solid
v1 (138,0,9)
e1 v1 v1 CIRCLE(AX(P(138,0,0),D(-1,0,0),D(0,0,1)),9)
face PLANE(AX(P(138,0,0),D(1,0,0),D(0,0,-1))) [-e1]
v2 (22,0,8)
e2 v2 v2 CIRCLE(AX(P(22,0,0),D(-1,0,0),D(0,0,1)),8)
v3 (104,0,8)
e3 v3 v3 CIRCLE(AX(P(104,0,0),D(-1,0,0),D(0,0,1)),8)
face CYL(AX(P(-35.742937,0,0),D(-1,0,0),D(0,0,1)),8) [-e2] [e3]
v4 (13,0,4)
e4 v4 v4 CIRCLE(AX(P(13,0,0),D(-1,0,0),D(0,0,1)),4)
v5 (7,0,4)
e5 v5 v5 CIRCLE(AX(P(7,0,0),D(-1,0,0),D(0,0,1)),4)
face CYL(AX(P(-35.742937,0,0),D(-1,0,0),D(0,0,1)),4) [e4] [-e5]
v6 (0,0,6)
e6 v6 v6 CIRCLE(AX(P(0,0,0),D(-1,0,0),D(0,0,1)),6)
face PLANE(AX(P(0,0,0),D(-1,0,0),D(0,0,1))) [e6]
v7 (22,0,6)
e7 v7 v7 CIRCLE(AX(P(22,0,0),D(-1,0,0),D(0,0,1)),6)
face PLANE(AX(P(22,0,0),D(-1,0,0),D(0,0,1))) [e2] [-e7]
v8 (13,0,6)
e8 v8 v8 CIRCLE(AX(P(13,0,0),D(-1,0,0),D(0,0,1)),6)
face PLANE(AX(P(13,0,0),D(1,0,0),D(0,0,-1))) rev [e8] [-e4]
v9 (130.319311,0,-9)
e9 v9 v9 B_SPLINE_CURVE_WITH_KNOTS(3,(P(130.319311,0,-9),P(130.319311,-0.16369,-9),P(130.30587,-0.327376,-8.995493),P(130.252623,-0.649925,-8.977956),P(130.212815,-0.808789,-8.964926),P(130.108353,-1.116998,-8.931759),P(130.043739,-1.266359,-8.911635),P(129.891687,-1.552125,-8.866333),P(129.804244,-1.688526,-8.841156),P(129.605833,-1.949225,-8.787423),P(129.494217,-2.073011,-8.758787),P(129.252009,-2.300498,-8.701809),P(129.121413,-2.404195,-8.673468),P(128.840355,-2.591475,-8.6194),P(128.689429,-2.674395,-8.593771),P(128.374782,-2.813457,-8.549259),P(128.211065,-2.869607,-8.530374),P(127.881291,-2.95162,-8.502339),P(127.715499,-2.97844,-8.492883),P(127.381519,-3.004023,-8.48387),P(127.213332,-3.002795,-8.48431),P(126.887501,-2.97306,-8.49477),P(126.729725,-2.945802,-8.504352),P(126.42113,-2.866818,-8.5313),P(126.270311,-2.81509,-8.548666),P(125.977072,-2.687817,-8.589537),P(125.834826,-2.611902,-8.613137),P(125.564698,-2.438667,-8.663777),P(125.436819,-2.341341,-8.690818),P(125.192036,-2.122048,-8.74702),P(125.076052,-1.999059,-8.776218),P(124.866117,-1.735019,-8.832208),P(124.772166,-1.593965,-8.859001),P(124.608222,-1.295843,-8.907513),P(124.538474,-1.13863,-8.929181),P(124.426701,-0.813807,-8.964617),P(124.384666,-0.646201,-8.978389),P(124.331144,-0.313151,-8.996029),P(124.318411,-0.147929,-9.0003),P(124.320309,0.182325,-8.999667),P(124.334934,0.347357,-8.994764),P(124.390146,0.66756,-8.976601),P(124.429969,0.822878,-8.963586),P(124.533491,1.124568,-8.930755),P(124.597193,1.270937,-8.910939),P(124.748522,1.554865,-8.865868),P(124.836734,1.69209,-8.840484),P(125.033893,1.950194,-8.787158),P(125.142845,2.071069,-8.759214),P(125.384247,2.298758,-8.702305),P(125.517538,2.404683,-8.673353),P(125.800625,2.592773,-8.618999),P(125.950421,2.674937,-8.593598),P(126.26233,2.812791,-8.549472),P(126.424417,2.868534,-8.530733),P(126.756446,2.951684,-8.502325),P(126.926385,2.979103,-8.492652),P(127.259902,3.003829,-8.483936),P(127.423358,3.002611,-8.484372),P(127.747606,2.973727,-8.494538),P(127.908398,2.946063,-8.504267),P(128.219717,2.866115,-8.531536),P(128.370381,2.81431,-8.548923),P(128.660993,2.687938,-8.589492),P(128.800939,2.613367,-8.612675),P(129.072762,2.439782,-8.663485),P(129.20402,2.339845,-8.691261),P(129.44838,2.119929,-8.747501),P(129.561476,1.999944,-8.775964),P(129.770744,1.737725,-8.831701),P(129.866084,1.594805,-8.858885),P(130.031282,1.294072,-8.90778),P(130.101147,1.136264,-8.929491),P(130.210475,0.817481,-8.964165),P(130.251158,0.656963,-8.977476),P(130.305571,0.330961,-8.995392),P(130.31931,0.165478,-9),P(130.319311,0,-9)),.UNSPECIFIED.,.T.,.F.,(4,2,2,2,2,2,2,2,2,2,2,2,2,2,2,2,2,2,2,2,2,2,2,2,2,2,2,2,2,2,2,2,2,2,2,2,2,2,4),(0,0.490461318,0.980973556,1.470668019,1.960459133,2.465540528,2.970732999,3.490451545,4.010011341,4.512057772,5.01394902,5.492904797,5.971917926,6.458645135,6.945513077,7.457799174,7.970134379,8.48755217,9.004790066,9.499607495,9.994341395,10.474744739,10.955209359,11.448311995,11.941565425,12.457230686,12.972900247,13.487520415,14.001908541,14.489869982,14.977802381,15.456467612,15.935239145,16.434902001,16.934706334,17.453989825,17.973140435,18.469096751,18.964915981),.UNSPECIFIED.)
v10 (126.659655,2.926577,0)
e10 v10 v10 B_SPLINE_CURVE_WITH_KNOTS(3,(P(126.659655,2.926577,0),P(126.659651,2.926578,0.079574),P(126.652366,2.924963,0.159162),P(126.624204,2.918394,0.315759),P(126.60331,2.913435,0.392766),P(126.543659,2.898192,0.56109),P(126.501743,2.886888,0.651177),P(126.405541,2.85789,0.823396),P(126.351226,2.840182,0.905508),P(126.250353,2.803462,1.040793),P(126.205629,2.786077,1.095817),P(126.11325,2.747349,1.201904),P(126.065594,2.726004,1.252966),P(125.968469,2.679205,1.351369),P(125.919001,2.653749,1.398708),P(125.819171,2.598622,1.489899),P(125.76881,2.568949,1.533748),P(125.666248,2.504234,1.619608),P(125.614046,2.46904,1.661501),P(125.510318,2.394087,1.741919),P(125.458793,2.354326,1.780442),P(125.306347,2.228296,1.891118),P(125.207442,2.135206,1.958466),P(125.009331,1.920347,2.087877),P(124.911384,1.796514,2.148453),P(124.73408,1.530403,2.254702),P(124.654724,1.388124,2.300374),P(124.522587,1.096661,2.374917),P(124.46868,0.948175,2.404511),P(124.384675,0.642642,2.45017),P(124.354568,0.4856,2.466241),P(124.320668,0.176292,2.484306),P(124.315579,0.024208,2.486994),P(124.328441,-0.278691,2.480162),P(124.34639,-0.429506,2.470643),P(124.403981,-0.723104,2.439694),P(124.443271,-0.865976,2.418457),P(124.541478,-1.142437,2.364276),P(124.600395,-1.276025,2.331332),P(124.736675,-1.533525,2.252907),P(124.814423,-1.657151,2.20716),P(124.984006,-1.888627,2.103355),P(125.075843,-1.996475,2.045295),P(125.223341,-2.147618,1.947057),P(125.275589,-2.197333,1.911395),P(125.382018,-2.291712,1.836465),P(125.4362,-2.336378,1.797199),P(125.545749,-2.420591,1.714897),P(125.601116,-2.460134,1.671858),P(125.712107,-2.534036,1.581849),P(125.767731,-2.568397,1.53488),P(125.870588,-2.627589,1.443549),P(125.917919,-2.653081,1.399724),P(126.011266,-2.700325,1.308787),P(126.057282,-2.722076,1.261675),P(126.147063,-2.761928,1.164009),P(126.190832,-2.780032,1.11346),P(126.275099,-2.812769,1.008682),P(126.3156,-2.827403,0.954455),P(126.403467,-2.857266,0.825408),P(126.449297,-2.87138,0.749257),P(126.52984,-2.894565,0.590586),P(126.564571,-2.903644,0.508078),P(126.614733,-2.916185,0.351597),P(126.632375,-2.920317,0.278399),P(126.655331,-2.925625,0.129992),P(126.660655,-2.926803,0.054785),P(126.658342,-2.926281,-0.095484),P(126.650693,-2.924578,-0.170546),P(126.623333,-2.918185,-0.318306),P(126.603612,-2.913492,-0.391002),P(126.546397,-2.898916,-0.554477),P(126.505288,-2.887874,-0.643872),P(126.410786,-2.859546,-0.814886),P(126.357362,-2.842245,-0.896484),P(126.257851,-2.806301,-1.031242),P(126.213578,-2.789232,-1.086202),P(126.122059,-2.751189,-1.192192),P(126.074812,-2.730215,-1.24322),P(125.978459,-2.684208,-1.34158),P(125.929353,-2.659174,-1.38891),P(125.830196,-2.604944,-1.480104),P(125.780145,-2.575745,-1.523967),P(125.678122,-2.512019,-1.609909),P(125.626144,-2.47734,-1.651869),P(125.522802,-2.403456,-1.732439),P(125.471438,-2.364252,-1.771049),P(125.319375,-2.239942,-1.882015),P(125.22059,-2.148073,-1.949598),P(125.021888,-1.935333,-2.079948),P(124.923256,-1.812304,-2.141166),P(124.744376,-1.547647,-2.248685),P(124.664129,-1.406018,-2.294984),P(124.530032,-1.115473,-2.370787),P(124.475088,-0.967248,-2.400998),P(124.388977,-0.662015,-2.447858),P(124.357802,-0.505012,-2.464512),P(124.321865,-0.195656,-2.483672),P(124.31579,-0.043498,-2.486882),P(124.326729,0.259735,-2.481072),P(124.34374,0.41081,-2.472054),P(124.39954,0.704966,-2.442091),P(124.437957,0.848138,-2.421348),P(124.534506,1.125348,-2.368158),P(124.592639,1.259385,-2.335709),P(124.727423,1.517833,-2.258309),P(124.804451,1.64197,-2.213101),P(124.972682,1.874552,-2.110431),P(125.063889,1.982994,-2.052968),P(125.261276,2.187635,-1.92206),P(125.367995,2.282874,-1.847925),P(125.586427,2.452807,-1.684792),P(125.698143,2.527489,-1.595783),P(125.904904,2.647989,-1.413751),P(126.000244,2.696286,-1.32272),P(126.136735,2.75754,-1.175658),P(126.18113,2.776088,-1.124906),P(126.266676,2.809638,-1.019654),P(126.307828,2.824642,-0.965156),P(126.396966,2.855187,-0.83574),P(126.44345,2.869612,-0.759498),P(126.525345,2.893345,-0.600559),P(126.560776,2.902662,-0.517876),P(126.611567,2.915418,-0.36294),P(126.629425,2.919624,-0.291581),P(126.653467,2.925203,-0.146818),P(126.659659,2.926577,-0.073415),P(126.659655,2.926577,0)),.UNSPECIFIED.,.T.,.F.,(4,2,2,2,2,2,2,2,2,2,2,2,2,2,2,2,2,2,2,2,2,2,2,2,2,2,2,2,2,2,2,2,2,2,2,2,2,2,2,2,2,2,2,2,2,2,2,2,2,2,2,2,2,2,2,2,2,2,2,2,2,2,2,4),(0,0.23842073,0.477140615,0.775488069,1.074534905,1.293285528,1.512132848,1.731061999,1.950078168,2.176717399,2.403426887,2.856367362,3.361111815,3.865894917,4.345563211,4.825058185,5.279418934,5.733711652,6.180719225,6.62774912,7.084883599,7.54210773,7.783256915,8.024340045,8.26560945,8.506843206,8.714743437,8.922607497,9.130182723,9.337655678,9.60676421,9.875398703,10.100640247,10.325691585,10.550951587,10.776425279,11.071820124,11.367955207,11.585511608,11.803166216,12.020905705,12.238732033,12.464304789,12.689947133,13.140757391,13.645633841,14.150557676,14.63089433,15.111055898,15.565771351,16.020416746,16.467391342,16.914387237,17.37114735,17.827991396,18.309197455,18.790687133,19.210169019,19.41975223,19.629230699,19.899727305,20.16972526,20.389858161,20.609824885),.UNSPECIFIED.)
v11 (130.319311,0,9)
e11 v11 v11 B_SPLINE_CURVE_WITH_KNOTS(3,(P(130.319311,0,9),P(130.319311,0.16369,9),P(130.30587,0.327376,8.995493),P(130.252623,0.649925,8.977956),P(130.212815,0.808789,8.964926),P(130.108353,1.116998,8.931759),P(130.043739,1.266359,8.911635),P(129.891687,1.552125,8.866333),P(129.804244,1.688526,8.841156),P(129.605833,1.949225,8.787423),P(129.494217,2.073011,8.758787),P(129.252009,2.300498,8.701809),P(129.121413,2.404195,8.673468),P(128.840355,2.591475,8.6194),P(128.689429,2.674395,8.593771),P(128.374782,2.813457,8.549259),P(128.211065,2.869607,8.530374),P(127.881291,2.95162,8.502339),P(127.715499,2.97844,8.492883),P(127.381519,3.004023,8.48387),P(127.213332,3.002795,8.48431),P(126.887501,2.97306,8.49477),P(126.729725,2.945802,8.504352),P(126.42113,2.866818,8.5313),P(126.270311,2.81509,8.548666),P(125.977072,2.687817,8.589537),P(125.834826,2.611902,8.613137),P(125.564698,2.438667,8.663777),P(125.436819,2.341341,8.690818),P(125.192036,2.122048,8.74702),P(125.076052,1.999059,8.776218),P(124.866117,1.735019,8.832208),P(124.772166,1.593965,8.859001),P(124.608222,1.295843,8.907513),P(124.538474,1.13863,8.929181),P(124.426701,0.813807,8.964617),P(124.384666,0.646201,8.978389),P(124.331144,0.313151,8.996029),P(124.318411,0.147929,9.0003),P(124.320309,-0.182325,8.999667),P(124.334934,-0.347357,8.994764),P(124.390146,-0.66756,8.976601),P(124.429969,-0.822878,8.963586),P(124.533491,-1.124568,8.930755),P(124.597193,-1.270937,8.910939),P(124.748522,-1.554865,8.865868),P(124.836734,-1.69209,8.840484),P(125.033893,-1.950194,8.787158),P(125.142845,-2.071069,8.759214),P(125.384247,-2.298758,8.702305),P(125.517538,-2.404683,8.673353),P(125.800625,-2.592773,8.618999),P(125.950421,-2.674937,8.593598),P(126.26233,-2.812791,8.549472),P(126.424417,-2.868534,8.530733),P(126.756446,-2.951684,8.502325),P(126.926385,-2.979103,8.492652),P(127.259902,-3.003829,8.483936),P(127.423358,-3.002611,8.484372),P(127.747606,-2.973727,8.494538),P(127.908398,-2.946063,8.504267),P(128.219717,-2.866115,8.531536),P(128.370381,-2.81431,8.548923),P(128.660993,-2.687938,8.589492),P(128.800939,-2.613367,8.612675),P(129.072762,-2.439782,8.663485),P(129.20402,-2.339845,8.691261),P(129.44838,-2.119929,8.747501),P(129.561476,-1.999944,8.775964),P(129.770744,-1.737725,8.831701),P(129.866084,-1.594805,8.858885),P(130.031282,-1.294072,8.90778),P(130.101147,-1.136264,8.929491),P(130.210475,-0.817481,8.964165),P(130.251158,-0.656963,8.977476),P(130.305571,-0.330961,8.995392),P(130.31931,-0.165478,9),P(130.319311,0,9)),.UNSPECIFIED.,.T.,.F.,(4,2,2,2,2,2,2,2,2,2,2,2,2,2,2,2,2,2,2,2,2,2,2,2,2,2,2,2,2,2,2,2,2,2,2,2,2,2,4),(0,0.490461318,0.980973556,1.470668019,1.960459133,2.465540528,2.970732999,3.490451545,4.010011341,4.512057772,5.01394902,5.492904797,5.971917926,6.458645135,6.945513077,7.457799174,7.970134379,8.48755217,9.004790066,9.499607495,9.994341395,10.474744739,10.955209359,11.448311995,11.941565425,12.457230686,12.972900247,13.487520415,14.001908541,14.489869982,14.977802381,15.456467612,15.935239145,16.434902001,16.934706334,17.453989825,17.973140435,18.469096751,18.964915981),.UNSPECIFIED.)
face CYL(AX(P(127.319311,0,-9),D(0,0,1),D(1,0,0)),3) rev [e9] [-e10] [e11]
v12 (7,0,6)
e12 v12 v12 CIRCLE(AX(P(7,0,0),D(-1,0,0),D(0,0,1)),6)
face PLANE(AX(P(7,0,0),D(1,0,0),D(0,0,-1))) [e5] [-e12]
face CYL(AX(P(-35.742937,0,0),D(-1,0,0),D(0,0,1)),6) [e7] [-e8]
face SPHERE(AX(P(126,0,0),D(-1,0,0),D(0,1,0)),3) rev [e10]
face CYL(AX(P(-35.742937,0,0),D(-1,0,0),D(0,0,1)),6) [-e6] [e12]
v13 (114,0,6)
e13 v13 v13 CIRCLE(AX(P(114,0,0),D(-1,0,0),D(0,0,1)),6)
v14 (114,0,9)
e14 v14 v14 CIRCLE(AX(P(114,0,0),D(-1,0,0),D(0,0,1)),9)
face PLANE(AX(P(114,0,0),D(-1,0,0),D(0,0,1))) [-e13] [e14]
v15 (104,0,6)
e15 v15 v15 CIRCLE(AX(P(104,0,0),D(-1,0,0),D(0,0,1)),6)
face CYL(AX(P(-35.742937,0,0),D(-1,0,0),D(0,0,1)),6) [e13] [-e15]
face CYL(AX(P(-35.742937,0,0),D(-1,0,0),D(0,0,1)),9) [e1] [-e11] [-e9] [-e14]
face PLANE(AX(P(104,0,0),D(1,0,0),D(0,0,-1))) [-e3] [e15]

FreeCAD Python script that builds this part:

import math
import FreeCAD as App
import Part
import Sketcher

V = App.Vector
Q = App.Units.Quantity

doc = App.newDocument("Part")
params = doc.addObject("Spreadsheet::Sheet", "Params")
for row, (alias, value) in enumerate([
    ("sketch1_radius", "3 mm"),
    ("sketch1_width", "9 mm"),
    ("sketch1_width2", "24 mm"),
    ("sketch1_width3", "10 mm"),
    ("sketch1_width4", "82 mm"),
    ("revolution_angle", "360 deg"),
    ("sketch2_diameter", "6 mm"),
], start=1):
    params.set(f"A{row}", alias)
    params.set(f"B{row}", "=" + value)
    params.setAlias(f"B{row}", alias)

body = doc.addObject("PartDesign::Body", "Body")

sketch1 = body.newObject("Sketcher::SketchObject", "Sketch")
sketch1.AttachmentSupport = (doc.getObject("XY_Plane"), [""])
sketch1.MapMode = "FlatFace"
sketch1.addGeometry([
    Part.ArcOfCircle(Part.Circle(V(126, 0, 0), V(0, 0, 1), 3), math.radians(0), math.radians(180)),
    Part.LineSegment(V(129, 0, 0), V(138, 0, 0)),
    Part.LineSegment(V(138, 0, 0), V(138, 9, 0)),
    Part.LineSegment(V(138, 9, 0), V(114, 9, 0)),
    Part.LineSegment(V(114, 9, 0), V(114, 6, 0)),
    Part.LineSegment(V(114, 6, 0), V(104, 6, 0)),
    Part.LineSegment(V(104, 6, 0), V(104, 8, 0)),
    Part.LineSegment(V(104, 8, 0), V(22, 8, 0)),
    Part.LineSegment(V(22, 8, 0), V(22, 6, 0)),
    Part.LineSegment(V(22, 6, 0), V(13, 6, 0)),
    Part.LineSegment(V(13, 6, 0), V(13, 4, 0)),
    Part.LineSegment(V(13, 4, 0), V(7, 4, 0)),
    Part.LineSegment(V(7, 4, 0), V(7, 6, 0)),
    Part.LineSegment(V(7, 6, 0), V(0, 6, 0)),
    Part.LineSegment(V(0, 6, 0), V(0, 0, 0)),
    Part.LineSegment(V(0, 0, 0), V(123, 0, 0)),
], False)
sketch1.addConstraint([
    Sketcher.Constraint("Coincident", 0, 1, 1, 1),
    Sketcher.Constraint("Coincident", 1, 2, 2, 1),
    Sketcher.Constraint("Coincident", 2, 2, 3, 1),
    Sketcher.Constraint("Coincident", 3, 2, 4, 1),
    Sketcher.Constraint("Coincident", 4, 2, 5, 1),
    Sketcher.Constraint("Coincident", 5, 2, 6, 1),
    Sketcher.Constraint("Coincident", 6, 2, 7, 1),
    Sketcher.Constraint("Coincident", 7, 2, 8, 1),
    Sketcher.Constraint("Coincident", 8, 2, 9, 1),
    Sketcher.Constraint("Coincident", 9, 2, 10, 1),
    Sketcher.Constraint("Coincident", 10, 2, 11, 1),
    Sketcher.Constraint("Coincident", 11, 2, 12, 1),
    Sketcher.Constraint("Coincident", 12, 2, 13, 1),
    Sketcher.Constraint("Coincident", 13, 2, 14, 1),
    Sketcher.Constraint("Coincident", 14, 2, 15, 1),
    Sketcher.Constraint("Coincident", 15, 2, 0, 2),
    Sketcher.Constraint("Horizontal", 1),
    Sketcher.Constraint("Vertical", 2),
    Sketcher.Constraint("Horizontal", 3),
    Sketcher.Constraint("Vertical", 4),
    Sketcher.Constraint("Horizontal", 5),
    Sketcher.Constraint("Vertical", 6),
    Sketcher.Constraint("Horizontal", 7),
    Sketcher.Constraint("Vertical", 8),
    Sketcher.Constraint("Horizontal", 9),
    Sketcher.Constraint("Vertical", 10),
    Sketcher.Constraint("Horizontal", 11),
    Sketcher.Constraint("Vertical", 12),
    Sketcher.Constraint("Horizontal", 13),
    Sketcher.Constraint("Vertical", 14),
    Sketcher.Constraint("Horizontal", 15),
    Sketcher.Constraint("Coincident", 14, 2, -1, 1),
    Sketcher.Constraint("PointOnObject", 0, 3, -1),
    Sketcher.Constraint("PointOnObject", 0, 1, -1),
    Sketcher.Constraint("Horizontal", 5, 2, 8, 2),
    Sketcher.Constraint("Horizontal", 9, 2, 12, 2),
    Sketcher.Constraint("Equal", 1, 9),
    Sketcher.Constraint("Equal", 9, 2),
    Sketcher.Constraint("Equal", 8, 10),
    Sketcher.Constraint("Equal", 11, 14),
    Sketcher.Constraint("Radius", 0, Q("3 mm")),
    Sketcher.Constraint("DistanceX", 1, 1, 1, 2, Q("9 mm")),
    Sketcher.Constraint("DistanceX", 3, 2, 3, 1, Q("24 mm")),
    Sketcher.Constraint("DistanceX", 5, 2, 5, 1, Q("10 mm")),
    Sketcher.Constraint("DistanceX", 7, 2, 7, 1, Q("82 mm")),
    Sketcher.Constraint("DistanceX", 11, 2, 11, 1, Q("6 mm")),
    Sketcher.Constraint("DistanceX", 13, 2, 13, 1, Q("7 mm")),
    Sketcher.Constraint("DistanceY", 6, 1, 6, 2, Q("2 mm")),
])
sketch1.setExpression("Constraints[40]", "Params.sketch1_radius")
sketch1.setExpression("Constraints[41]", "Params.sketch1_width")
sketch1.setExpression("Constraints[42]", "Params.sketch1_width2")
sketch1.setExpression("Constraints[43]", "Params.sketch1_width3")
sketch1.setExpression("Constraints[44]", "Params.sketch1_width4")
revolution = body.newObject("PartDesign::Revolution", "Revolution")
revolution.Profile = sketch1
revolution.ReferenceAxis = (sketch1, ["H_Axis"])
revolution.setExpression("Angle", "Params.revolution_angle")

sketch2 = body.newObject("Sketcher::SketchObject", "Sketch001")
sketch2.AttachmentSupport = (doc.getObject("XY_Plane"), [""])
sketch2.MapMode = "FlatFace"
sketch2.AttachmentOffset = App.Placement(V(0, 0, 9), App.Rotation())
sketch2.addGeometry(Part.Circle(V(127.3, 0, 0), V(0, 0, 1), 3), False)
sketch2.addConstraint([
    Sketcher.Constraint("PointOnObject", 0, 3, -1),
    Sketcher.Constraint("Diameter", 0, Q("6 mm")),
    Sketcher.Constraint("DistanceX", -1, 1, 0, 3, Q("127.319311 mm")),
])
sketch2.setExpression("Constraints[1]", "Params.sketch2_diameter")
pocket1 = body.newObject("PartDesign::Pocket", "Pocket")
pocket1.Profile = sketch2
pocket1.Type = "ThroughAll"

doc.recompute()
